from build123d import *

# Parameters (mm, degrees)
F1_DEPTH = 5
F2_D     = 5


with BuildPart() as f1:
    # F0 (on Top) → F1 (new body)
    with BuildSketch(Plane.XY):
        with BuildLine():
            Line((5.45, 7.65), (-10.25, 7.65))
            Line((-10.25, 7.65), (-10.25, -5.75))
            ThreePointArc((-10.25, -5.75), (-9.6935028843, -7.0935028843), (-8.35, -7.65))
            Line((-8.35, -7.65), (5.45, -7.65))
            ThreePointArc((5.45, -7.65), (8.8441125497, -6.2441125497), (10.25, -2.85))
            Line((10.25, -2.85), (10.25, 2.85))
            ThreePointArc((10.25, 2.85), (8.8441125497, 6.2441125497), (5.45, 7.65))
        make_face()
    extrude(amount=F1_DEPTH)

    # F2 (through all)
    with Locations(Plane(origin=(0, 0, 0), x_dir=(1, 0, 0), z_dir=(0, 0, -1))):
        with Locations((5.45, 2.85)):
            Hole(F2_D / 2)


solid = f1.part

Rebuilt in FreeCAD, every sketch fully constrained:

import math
import FreeCAD as App
import Part
import Sketcher

V = App.Vector

doc = App.newDocument("Part")
body = doc.addObject("PartDesign::Body", "Body")

sketch1 = body.newObject("Sketcher::SketchObject", "Sketch")
sketch1.AttachmentSupport = (doc.getObject("XY_Plane"), [""])
sketch1.MapMode = "FlatFace"
sketch1.addGeometry([
    Part.LineSegment(V(5.5, 7.7, 0), V(-10.2, 7.7, 0)),
    Part.LineSegment(V(-10.2, 7.7, 0), V(-10.2, -5.8, 0)),
    Part.ArcOfCircle(Part.Circle(V(-8.3, -5.8, 0), V(0, 0, 1), 1.9), math.radians(180), math.radians(270)),
    Part.LineSegment(V(-8.3, -7.7, 0), V(5.5, -7.7, 0)),
    Part.ArcOfCircle(Part.Circle(V(5.5, -2.9, 0), V(0, 0, 1), 4.8), math.radians(-90), math.radians(0)),
    Part.LineSegment(V(10.2, -2.9, 0), V(10.2, 2.9, 0)),
    Part.ArcOfCircle(Part.Circle(V(5.5, 2.9, 0), V(0, 0, 1), 4.8), math.radians(0), math.radians(90)),
], False)
sketch1.addConstraint([
    Sketcher.Constraint("Coincident", 0, 2, 1, 1),
    Sketcher.Constraint("Tangent", 1, 2, 2, 1),
    Sketcher.Constraint("Tangent", 2, 2, 3, 1),
    Sketcher.Constraint("Tangent", 3, 2, 4, 1),
    Sketcher.Constraint("Tangent", 4, 2, 5, 1),
    Sketcher.Constraint("Tangent", 5, 2, 6, 1),
    Sketcher.Constraint("Tangent", 6, 2, 0, 1),
    Sketcher.Constraint("Horizontal", 0),
    Sketcher.Constraint("Vertical", 1),
    Sketcher.Constraint("Horizontal", 3),
    Sketcher.Constraint("Vertical", 5),
    Sketcher.Constraint("Equal", 4, 6),
    Sketcher.Constraint("Radius", 2, 1.9),
    Sketcher.Constraint("Radius", 4, 4.8),
    Sketcher.Constraint("DistanceX", 0, 2, 0, 1, 15.7),
    Sketcher.Constraint("DistanceY", 1, 2, 1, 1, 13.4),
    Sketcher.Constraint("DistanceX", 2, 3, -1, 1, 8.35),
    Sketcher.Constraint("DistanceY", 2, 3, -1, 1, 5.75),
])
pad1 = body.newObject("PartDesign::Pad", "Pad")
pad1.Profile = sketch1
pad1.Length = 5

sketch2 = body.newObject("Sketcher::SketchObject", "Sketch001")
sketch2.AttachmentSupport = (doc.getObject("XY_Plane"), [""])
sketch2.MapMode = "FlatFace"
sketch2.addGeometry(Part.Circle(V(5.5, -2.9, 0), V(0, 0, 1), 2.5), False)
sketch2.addConstraint([
    Sketcher.Constraint("Diameter", 0, 5.0),
    Sketcher.Constraint("DistanceX", -1, 1, 0, 3, 5.45),
    Sketcher.Constraint("DistanceY", 0, 3, -1, 1, 2.85),
])
doc.recompute()
hole = body.newObject("PartDesign::Hole", "Hole")
hole.Profile = sketch2
hole.ThreadType = "None"
hole.Diameter = 5
hole.DepthType = "ThroughAll"
hole.Reversed = True

doc.recompute()
